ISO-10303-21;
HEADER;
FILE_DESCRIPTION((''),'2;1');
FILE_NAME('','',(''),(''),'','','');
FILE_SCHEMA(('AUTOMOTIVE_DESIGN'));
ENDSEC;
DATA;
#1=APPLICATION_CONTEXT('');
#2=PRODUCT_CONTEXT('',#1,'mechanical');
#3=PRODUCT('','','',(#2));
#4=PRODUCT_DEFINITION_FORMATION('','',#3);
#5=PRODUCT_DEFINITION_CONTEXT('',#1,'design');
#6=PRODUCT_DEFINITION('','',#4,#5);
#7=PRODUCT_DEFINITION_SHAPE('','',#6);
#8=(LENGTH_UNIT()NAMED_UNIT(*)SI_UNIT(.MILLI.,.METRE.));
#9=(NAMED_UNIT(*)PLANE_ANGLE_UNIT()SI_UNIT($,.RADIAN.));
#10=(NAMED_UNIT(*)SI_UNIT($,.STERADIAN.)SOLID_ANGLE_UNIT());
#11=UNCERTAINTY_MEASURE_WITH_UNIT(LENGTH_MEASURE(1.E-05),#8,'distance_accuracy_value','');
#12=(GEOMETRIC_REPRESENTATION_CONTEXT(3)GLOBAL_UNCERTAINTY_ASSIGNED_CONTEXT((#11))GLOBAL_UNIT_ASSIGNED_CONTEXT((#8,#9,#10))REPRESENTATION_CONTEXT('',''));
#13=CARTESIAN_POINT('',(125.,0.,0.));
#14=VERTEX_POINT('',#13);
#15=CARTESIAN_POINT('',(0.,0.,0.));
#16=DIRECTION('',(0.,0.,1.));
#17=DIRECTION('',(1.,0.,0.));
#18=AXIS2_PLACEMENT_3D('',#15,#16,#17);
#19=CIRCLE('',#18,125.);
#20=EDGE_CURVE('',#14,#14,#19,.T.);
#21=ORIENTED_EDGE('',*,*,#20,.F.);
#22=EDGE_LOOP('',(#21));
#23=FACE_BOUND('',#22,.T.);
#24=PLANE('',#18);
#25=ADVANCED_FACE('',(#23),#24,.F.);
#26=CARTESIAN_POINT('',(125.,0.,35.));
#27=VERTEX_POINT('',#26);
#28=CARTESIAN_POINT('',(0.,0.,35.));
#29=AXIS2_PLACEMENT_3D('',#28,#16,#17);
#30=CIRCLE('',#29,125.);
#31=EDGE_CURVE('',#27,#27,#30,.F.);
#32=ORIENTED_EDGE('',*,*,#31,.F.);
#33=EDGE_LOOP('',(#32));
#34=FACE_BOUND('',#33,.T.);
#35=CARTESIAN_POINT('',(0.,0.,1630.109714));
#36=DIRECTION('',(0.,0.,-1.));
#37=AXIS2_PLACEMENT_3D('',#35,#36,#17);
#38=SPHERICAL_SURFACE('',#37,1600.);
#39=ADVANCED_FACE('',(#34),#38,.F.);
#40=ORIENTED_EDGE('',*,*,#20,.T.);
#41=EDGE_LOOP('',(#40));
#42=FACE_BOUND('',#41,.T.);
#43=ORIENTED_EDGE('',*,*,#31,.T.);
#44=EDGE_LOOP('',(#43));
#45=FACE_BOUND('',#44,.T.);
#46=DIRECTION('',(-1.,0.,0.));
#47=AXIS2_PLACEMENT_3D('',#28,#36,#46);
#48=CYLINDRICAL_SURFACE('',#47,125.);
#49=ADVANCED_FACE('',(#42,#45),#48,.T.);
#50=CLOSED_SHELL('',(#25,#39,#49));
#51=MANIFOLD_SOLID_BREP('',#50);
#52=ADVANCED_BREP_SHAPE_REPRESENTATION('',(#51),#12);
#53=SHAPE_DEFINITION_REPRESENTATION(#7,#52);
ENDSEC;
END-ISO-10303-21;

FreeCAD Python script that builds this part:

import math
import FreeCAD as App
import Part
import Sketcher

V = App.Vector

doc = App.newDocument("Part")
params = doc.addObject("Spreadsheet::Sheet", "Params")
for row, (alias, value) in enumerate([
    ("sketch1_diameter", "250 mm"),
    ("pad1_length", "35 mm"),
    ("sketch2_radius", "1600 mm"),
    ("groove_angle", "360 deg"),
], start=1):
    params.set(f"A{row}", alias)
    params.set(f"B{row}", "=" + value)
    params.setAlias(f"B{row}", alias)

body = doc.addObject("PartDesign::Body", "Body")

sketch1 = body.newObject("Sketcher::SketchObject", "Sketch")
sketch1.AttachmentSupport = (doc.getObject("XY_Plane"), [""])
sketch1.MapMode = "FlatFace"
sketch1.addGeometry(Part.Circle(V(0, 0, 0), V(0, 0, 1), 125), False)
sketch1.addConstraint(Sketcher.Constraint("Coincident", 0, 3, -1, 1))
sketch1.addConstraint(Sketcher.Constraint("Diameter", 0, 250.0))
sketch1.setExpression("Constraints[1]", "Params.sketch1_diameter")
pad1 = body.newObject("PartDesign::Pad", "Pad")
pad1.Profile = sketch1
pad1.setExpression("Length", "Params.pad1_length")

sketch2 = body.newObject("Sketcher::SketchObject", "Sketch001")
sketch2.AttachmentSupport = (doc.getObject("XZ_Plane"), [""])
sketch2.MapMode = "FlatFace"
sketch2.addGeometry(Part.LineSegment(V(0, 30, 0), V(0, 1630, 0)), False)
sketch2.addGeometry(Part.LineSegment(V(0, 1630, 0), V(1600, 1630, 0)), False)
sketch2.addGeometry(Part.ArcOfCircle(Part.Circle(V(0, 1630, 0), V(0, 0, 1), 1600), math.radians(-90), math.radians(0)), False)
sketch2.addConstraint(Sketcher.Constraint("Coincident", 0, 2, 1, 1))
sketch2.addConstraint(Sketcher.Constraint("Coincident", 1, 2, 2, 2))
sketch2.addConstraint(Sketcher.Constraint("Coincident", 2, 1, 0, 1))
sketch2.addConstraint(Sketcher.Constraint("Vertical", 0))
sketch2.addConstraint(Sketcher.Constraint("Horizontal", 1))
sketch2.addConstraint(Sketcher.Constraint("Coincident", 0, 2, 2, 3))
sketch2.addConstraint(Sketcher.Constraint("PointOnObject", 2, 3, -2))
sketch2.addConstraint(Sketcher.Constraint("Radius", 2, 1600.0))
sketch2.addConstraint(Sketcher.Constraint("DistanceY", -1, 1, 2, 3, 1630.109714))
sketch2.setExpression("Constraints[7]", "Params.sketch2_radius")
groove = body.newObject("PartDesign::Groove", "Groove")
groove.Profile = sketch2
groove.ReferenceAxis = (sketch2, ["V_Axis"])
groove.setExpression("Angle", "Params.groove_angle")

doc.recompute()
